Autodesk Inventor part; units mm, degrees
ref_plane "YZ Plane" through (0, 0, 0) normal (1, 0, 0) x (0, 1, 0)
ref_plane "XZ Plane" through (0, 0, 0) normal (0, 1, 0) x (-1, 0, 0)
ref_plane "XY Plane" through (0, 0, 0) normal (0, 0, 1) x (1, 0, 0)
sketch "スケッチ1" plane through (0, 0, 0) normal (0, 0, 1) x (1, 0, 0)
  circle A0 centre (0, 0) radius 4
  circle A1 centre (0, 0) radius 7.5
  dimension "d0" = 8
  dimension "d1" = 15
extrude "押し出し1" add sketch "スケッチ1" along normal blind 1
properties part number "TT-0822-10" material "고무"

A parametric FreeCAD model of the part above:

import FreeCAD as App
import Part
import Sketcher
from FreeCAD import Vector
Q = App.Units.Quantity

doc = App.newDocument("Part")
body = doc.addObject("PartDesign::Body", "Body")

# Sketch on XY plane
sketch1 = doc.addObject("Sketcher::SketchObject", "Sketch")
body.addObject(sketch1)
sketch1.AttachmentSupport = (doc.XY_Plane, [""])
sketch1.MapMode = "FlatFace"
sketch1.addGeometry(Part.Circle(Vector(0, 0, 0), Vector(0, 0, 1), 7.5), False)
sketch1.addGeometry(Part.Circle(Vector(0, 0, 0), Vector(0, 0, 1), 4), False)
sketch1.addConstraint(Sketcher.Constraint("Coincident", 0, 3, -1, 1))
sketch1.addConstraint(Sketcher.Constraint("Coincident", 1, 3, -1, 1))
sketch1.addConstraint(Sketcher.Constraint("Diameter", 0, Q("15 mm")))
sketch1.addConstraint(Sketcher.Constraint("Diameter", 1, Q("8 mm")))
pad1 = doc.addObject("PartDesign::Pad", "Pad")
body.addObject(pad1)
pad1.Profile = sketch1
pad1.Length = 1

doc.recompute()
